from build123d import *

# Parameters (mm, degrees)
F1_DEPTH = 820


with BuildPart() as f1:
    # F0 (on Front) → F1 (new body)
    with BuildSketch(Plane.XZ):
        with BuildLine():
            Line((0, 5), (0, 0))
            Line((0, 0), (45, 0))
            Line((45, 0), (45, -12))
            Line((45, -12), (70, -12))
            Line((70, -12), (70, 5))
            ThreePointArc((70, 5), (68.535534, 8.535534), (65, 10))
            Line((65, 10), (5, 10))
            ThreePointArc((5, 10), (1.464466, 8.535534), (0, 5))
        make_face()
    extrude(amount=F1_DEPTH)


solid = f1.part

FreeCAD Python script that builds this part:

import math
import FreeCAD as App
import Part
import Sketcher

doc = App.newDocument("Part")
params = doc.addObject("Spreadsheet::Sheet", "Params")
for row, (alias, value) in enumerate([
    ("sketch1_radius", "5 mm"),
    ("sketch1_width", "45 mm"),
    ("sketch1_width2", "25 mm"),
    ("sketch1_height", "5 mm"),
    ("sketch1_height2", "12 mm"),
    ("pad1_length", "820 mm"),
], start=1):
    params.set(f"A{row}", alias)
    params.set(f"B{row}", "=" + value)
    params.setAlias(f"B{row}", alias)

body = doc.addObject("PartDesign::Body", "Body")

# Sketch on XZ plane
sketch1 = body.newObject("Sketcher::SketchObject", "Sketch")
sketch1.AttachmentSupport = (doc.getObject("XZ_Plane"), [""])
sketch1.MapMode = "FlatFace"
sketch1.addGeometry(Part.LineSegment(App.Vector(0, 5, 0), App.Vector(0, 0, 0)), False)
sketch1.addGeometry(Part.LineSegment(App.Vector(0, 0, 0), App.Vector(45, 0, 0)), False)
sketch1.addGeometry(Part.LineSegment(App.Vector(45, 0, 0), App.Vector(45, -12, 0)), False)
sketch1.addGeometry(Part.LineSegment(App.Vector(45, -12, 0), App.Vector(70, -12, 0)), False)
sketch1.addGeometry(Part.LineSegment(App.Vector(70, -12, 0), App.Vector(70, 5, 0)), False)
sketch1.addGeometry(Part.ArcOfCircle(Part.Circle(App.Vector(65, 5, 0), App.Vector(0, 0, 1), 5), math.radians(0), math.radians(90)), False)
sketch1.addGeometry(Part.LineSegment(App.Vector(65, 10, 0), App.Vector(5, 10, 0)), False)
sketch1.addGeometry(Part.ArcOfCircle(Part.Circle(App.Vector(5, 5, 0), App.Vector(0, 0, 1), 5), math.radians(90), math.radians(180)), False)
sketch1.addConstraint(Sketcher.Constraint("Coincident", 0, 2, 1, 1))
sketch1.addConstraint(Sketcher.Constraint("Coincident", 1, 2, 2, 1))
sketch1.addConstraint(Sketcher.Constraint("Coincident", 2, 2, 3, 1))
sketch1.addConstraint(Sketcher.Constraint("Coincident", 3, 2, 4, 1))
sketch1.addConstraint(Sketcher.Constraint("Tangent", 4, 2, 5, 1))
sketch1.addConstraint(Sketcher.Constraint("Tangent", 5, 2, 6, 1))
sketch1.addConstraint(Sketcher.Constraint("Tangent", 6, 2, 7, 1))
sketch1.addConstraint(Sketcher.Constraint("Tangent", 7, 2, 0, 1))
sketch1.addConstraint(Sketcher.Constraint("Vertical", 0))
sketch1.addConstraint(Sketcher.Constraint("Horizontal", 1))
sketch1.addConstraint(Sketcher.Constraint("Vertical", 2))
sketch1.addConstraint(Sketcher.Constraint("Horizontal", 3))
sketch1.addConstraint(Sketcher.Constraint("Vertical", 4))
sketch1.addConstraint(Sketcher.Constraint("Horizontal", 6))
sketch1.addConstraint(Sketcher.Constraint("Coincident", 0, 2, -1, 1))
sketch1.addConstraint(Sketcher.Constraint("Equal", 5, 7))
sketch1.addConstraint(Sketcher.Constraint("Radius", 5, 5.0))
sketch1.addConstraint(Sketcher.Constraint("DistanceX", 1, 1, 1, 2, 45.0))
sketch1.addConstraint(Sketcher.Constraint("DistanceX", 3, 1, 3, 2, 25.0))
sketch1.addConstraint(Sketcher.Constraint("DistanceY", 0, 2, 0, 1, 5.0))
sketch1.addConstraint(Sketcher.Constraint("DistanceY", 2, 2, 2, 1, 12.0))
sketch1.setExpression("Constraints[16]", "Params.sketch1_radius")
sketch1.setExpression("Constraints[17]", "Params.sketch1_width")
sketch1.setExpression("Constraints[18]", "Params.sketch1_width2")
sketch1.setExpression("Constraints[19]", "Params.sketch1_height")
sketch1.setExpression("Constraints[20]", "Params.sketch1_height2")
pad1 = body.newObject("PartDesign::Pad", "Pad")
pad1.Profile = sketch1
pad1.setExpression("Length", "Params.pad1_length")

doc.recompute()
